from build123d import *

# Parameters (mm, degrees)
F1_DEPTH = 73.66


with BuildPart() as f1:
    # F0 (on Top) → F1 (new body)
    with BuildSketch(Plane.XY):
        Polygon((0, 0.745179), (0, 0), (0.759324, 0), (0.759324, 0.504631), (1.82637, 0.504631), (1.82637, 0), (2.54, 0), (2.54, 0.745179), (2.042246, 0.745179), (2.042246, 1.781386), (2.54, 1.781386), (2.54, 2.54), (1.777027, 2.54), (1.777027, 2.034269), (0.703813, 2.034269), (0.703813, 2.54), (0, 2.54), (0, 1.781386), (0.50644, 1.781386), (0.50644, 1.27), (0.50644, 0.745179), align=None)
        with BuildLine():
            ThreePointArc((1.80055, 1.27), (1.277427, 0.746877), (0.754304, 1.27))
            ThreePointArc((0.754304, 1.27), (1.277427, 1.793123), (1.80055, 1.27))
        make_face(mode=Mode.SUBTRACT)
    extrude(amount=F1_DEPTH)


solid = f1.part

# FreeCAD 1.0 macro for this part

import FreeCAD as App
import Part
import Sketcher
from FreeCAD import Vector
Q = App.Units.Quantity


def add_polygon(sketch, points):
    """Adds a closed chain of lines whose ends are joined by coincident constraints."""
    first, n = sketch.GeometryCount, len(points)
    for a, b in zip(points, points[1:] + points[:1]):
        sketch.addGeometry(Part.LineSegment(App.Vector(*a, 0), App.Vector(*b, 0)), False)
    for i in range(n):
        sketch.addConstraint(Sketcher.Constraint("Coincident", first + i, 2, first + (i + 1) % n, 1))

doc = App.newDocument("Part")
body = doc.addObject("PartDesign::Body", "Body")

# Sketch on XY plane
sketch1 = doc.addObject("Sketcher::SketchObject", "Sketch")
body.addObject(sketch1)
sketch1.AttachmentSupport = (doc.XY_Plane, [""])
sketch1.MapMode = "FlatFace"
add_polygon(sketch1, [(0, 0.75), (0, 0), (0.76, 0), (0.76, 0.5), (1.83, 0.5), (1.83, 0), (2.54, 0), (2.54, 0.75), (2.04, 0.75), (2.04, 1.78), (2.54, 1.78), (2.54, 2.54), (1.78, 2.54), (1.78, 2.03), (0.7, 2.03), (0.7, 2.54), (0, 2.54), (0, 1.78), (0.51, 1.78), (0.51, 0.75)])  # lines 0-19
sketch1.addGeometry(Part.Circle(Vector(1.28, 1.27, 0), Vector(0, 0, 1), 0.52), False)  # 20
sketch1.addConstraint([
    Sketcher.Constraint("Vertical", 0),
    Sketcher.Constraint("Horizontal", 1),
    Sketcher.Constraint("Vertical", 2),
    Sketcher.Constraint("Horizontal", 3),
    Sketcher.Constraint("Vertical", 4),
    Sketcher.Constraint("Horizontal", 5),
    Sketcher.Constraint("Vertical", 6),
    Sketcher.Constraint("Horizontal", 7),
    Sketcher.Constraint("Vertical", 8),
    Sketcher.Constraint("Horizontal", 9),
    Sketcher.Constraint("Vertical", 10),
    Sketcher.Constraint("Horizontal", 11),
    Sketcher.Constraint("Vertical", 12),
    Sketcher.Constraint("Horizontal", 13),
    Sketcher.Constraint("Vertical", 14),
    Sketcher.Constraint("Horizontal", 15),
    Sketcher.Constraint("Vertical", 16),
    Sketcher.Constraint("Horizontal", 17),
    Sketcher.Constraint("Vertical", 18),
    Sketcher.Constraint("Horizontal", 19),
    Sketcher.Constraint("Coincident", 0, 2, -1, 1),
    Sketcher.Constraint("PointOnObject", 4, 2, -1),
    Sketcher.Constraint("PointOnObject", 15, 2, -2),
    Sketcher.Constraint("Horizontal", 11, 2, 14, 2),
    Sketcher.Constraint("Horizontal", 9, 2, 16, 2),
    Sketcher.Constraint("Horizontal", 7, 2, 18, 2),
    Sketcher.Constraint("Vertical", 6, 2, 9, 2),
    Sketcher.Constraint("DistanceX", -1, 1, 5, 2, Q("0.1 in")),
    Sketcher.Constraint("DistanceY", -1, 1, 10, 2, Q("0.1 in")),
    Sketcher.Constraint("DistanceY", -1, 1, 20, 3, Q("0.05 in")),
    Sketcher.Constraint("Diameter", 20, Q("1.046246 mm")),
    Sketcher.Constraint("DistanceX", 5, 1, 5, 2, Q("0.71363 mm")),
    Sketcher.Constraint("DistanceX", 17, 1, 17, 2, Q("0.50644 mm")),
    Sketcher.Constraint("DistanceY", 0, 2, 0, 1, Q("0.745179 mm")),
    Sketcher.Constraint("DistanceY", 2, 1, 2, 2, Q("0.504631 mm")),
    Sketcher.Constraint("DistanceY", 12, 2, 12, 1, Q("0.505731 mm")),
    Sketcher.Constraint("DistanceX", 20, 3, 11, 2, Q("0.4996 mm")),
    Sketcher.Constraint("DistanceX", 1, 1, 1, 2, Q("0.759324 mm")),
    Sketcher.Constraint("DistanceX", 7, 2, 7, 1, Q("0.497754 mm")),
    Sketcher.Constraint("DistanceX", 11, 2, 11, 1, Q("0.762973 mm")),
    Sketcher.Constraint("DistanceX", 13, 2, 13, 1, Q("1.073214 mm")),
    Sketcher.Constraint("DistanceY", 8, 1, 8, 2, Q("1.036207 mm")),
])
pad1 = doc.addObject("PartDesign::Pad", "Pad")
body.addObject(pad1)
pad1.Profile = sketch1
pad1.Length = Q("2.9 in")

doc.recompute()
